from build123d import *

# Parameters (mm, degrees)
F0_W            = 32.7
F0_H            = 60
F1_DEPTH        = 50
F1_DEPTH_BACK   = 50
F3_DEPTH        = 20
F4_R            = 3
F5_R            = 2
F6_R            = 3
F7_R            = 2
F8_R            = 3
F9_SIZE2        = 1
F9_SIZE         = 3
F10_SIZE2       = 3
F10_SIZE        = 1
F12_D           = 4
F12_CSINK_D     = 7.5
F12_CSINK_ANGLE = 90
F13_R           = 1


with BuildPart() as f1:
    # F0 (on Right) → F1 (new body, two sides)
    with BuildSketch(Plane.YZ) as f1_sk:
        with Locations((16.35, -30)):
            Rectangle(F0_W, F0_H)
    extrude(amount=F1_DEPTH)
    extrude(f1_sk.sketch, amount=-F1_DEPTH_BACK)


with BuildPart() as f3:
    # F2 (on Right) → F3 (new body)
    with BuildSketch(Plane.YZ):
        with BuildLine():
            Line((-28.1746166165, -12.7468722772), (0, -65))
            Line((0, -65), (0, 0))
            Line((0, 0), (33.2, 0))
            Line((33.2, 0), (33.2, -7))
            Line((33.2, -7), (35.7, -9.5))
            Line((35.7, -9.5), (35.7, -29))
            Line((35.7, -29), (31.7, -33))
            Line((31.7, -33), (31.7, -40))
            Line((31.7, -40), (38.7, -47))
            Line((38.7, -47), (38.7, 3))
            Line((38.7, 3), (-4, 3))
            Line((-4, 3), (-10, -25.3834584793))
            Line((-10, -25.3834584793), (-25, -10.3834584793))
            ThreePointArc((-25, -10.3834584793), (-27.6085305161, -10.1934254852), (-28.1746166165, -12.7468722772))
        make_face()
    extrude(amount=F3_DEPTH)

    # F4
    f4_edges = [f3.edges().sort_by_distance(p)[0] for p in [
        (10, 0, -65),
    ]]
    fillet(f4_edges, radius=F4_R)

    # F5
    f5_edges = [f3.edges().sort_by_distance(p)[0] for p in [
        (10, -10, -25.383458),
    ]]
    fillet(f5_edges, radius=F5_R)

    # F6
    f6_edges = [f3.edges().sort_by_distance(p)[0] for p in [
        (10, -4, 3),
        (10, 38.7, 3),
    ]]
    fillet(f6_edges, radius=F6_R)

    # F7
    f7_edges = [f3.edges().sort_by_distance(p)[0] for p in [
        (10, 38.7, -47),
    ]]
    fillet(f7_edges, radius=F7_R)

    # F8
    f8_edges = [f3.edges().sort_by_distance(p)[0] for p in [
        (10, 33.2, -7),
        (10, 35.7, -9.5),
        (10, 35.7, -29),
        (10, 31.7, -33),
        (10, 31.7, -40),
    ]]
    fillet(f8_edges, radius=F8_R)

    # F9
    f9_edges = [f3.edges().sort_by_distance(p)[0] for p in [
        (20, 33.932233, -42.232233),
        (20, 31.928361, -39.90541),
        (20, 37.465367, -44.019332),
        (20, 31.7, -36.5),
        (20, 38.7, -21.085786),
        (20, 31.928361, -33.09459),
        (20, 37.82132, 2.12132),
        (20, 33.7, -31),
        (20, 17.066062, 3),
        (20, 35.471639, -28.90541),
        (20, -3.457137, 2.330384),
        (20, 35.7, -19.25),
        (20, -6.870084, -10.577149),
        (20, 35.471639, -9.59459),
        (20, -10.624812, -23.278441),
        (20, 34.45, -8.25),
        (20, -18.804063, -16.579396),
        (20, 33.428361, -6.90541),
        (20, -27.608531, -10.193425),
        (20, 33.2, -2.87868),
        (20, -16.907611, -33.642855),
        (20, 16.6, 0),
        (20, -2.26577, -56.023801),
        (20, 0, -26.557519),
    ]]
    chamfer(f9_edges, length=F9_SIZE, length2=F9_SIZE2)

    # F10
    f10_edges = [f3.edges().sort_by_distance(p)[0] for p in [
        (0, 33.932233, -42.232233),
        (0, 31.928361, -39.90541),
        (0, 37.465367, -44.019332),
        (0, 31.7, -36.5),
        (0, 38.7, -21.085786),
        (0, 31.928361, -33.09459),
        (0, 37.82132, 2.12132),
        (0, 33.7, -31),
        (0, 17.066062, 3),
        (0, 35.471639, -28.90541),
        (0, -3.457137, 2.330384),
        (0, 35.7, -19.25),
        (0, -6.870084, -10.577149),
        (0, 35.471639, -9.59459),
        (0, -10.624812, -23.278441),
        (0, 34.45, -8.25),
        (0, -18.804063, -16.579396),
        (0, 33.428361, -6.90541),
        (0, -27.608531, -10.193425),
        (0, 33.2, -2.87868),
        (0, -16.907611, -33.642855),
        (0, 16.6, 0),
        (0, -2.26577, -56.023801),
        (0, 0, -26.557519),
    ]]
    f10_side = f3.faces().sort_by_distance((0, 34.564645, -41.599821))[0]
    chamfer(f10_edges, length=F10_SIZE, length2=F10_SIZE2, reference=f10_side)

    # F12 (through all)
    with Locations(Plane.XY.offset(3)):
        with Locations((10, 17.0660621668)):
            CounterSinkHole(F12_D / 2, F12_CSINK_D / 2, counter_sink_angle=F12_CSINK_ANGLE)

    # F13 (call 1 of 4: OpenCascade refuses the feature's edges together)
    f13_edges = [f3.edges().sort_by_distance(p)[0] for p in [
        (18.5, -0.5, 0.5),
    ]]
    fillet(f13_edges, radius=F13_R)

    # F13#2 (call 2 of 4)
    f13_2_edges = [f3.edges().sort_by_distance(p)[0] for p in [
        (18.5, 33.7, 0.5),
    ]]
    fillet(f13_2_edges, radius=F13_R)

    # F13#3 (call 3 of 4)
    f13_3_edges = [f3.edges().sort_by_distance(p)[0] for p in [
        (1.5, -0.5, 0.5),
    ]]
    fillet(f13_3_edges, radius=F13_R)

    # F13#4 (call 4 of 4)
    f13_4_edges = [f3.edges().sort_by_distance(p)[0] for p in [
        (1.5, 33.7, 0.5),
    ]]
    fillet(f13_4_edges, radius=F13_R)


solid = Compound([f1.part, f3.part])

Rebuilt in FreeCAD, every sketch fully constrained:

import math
import FreeCAD as App
import Part
import Sketcher
Q = App.Units.Quantity


def edges_at(feature, points):
    """Names of the edges that pass closest to the given points."""
    edges = feature.Shape.Edges
    near = lambda p: min(range(len(edges)), key=lambda i: edges[i].distToShape(Part.Vertex(*p))[0])
    return sorted({f"Edge{near(p) + 1}" for p in points})


def add_polygon(sketch, points):
    """Adds a closed chain of lines whose ends are joined by coincident constraints."""
    first, n = sketch.GeometryCount, len(points)
    for a, b in zip(points, points[1:] + points[:1]):
        sketch.addGeometry(Part.LineSegment(App.Vector(*a, 0), App.Vector(*b, 0)), False)
    for i in range(n):
        sketch.addConstraint(Sketcher.Constraint("Coincident", first + i, 2, first + (i + 1) % n, 1))

doc = App.newDocument("Part")
body = doc.addObject("PartDesign::Body", "Body")

# Sketch on YZ plane
sketch1 = doc.addObject("Sketcher::SketchObject", "Sketch")
body.addObject(sketch1)
sketch1.AttachmentSupport = (doc.YZ_Plane, [""])
sketch1.MapMode = "FlatFace"
add_polygon(sketch1, [(0, 0), (0, -60), (33, -60), (33, 0)])  # lines 0-3
sketch1.addConstraint([
    Sketcher.Constraint("Vertical", 0),
    Sketcher.Constraint("Horizontal", 1),
    Sketcher.Constraint("Vertical", 2),
    Sketcher.Constraint("Horizontal", 3),
    Sketcher.Constraint("Coincident", 3, 2, -1, 1),
    Sketcher.Constraint("DistanceY", 0, 2, 0, 1, Q("60 mm")),
    Sketcher.Constraint("DistanceX", 1, 1, 1, 2, Q("32.7 mm")),
])
pad1 = doc.addObject("PartDesign::Pad", "Pad")
body.addObject(pad1)
pad1.Profile = sketch1
pad1.Type = "TwoLengths"
pad1.Length = 50
pad1.Length2 = 50
body2 = doc.addObject("PartDesign::Body", "Body001")

# Sketch on YZ plane
sketch2 = doc.addObject("Sketcher::SketchObject", "Sketch001")
body2.addObject(sketch2)
sketch2.AttachmentSupport = (doc.getObject("YZ_Plane001"), [""])
sketch2.MapMode = "FlatFace"
sketch2.addGeometry([
    Part.LineSegment(App.Vector(-28.2, -12.7, 0), App.Vector(0, -65, 0)),  # 0
    Part.LineSegment(App.Vector(0, -65, 0), App.Vector(0, 0, 0)),  # 1
    Part.LineSegment(App.Vector(0, 0, 0), App.Vector(33.2, 0, 0)),  # 2
    Part.LineSegment(App.Vector(33.2, 0, 0), App.Vector(33.2, -7, 0)),  # 3
    Part.LineSegment(App.Vector(33.2, -7, 0), App.Vector(35.7, -9.5, 0)),  # 4
    Part.LineSegment(App.Vector(35.7, -9.5, 0), App.Vector(35.7, -29, 0)),  # 5
    Part.LineSegment(App.Vector(35.7, -29, 0), App.Vector(31.7, -33, 0)),  # 6
    Part.LineSegment(App.Vector(31.7, -33, 0), App.Vector(31.7, -40, 0)),  # 7
    Part.LineSegment(App.Vector(31.7, -40, 0), App.Vector(38.7, -47, 0)),  # 8
    Part.LineSegment(App.Vector(38.7, -47, 0), App.Vector(38.7, 3, 0)),  # 9
    Part.LineSegment(App.Vector(38.7, 3, 0), App.Vector(-4, 3, 0)),  # 10
    Part.LineSegment(App.Vector(-4, 3, 0), App.Vector(-10, -25.4, 0)),  # 11
    Part.LineSegment(App.Vector(-10, -25.4, 0), App.Vector(-25, -10.4, 0)),  # 12
    Part.ArcOfCircle(Part.Circle(App.Vector(-26.4, -11.8, 0), App.Vector(0, 0, 1), 2), math.radians(45), math.radians(208)),  # 13
], False)
sketch2.addConstraint([
    Sketcher.Constraint("Coincident", 0, 2, 1, 1),
    Sketcher.Constraint("Coincident", 1, 2, 2, 1),
    Sketcher.Constraint("Coincident", 2, 2, 3, 1),
    Sketcher.Constraint("Coincident", 3, 2, 4, 1),
    Sketcher.Constraint("Coincident", 4, 2, 5, 1),
    Sketcher.Constraint("Coincident", 5, 2, 6, 1),
    Sketcher.Constraint("Coincident", 6, 2, 7, 1),
    Sketcher.Constraint("Coincident", 7, 2, 8, 1),
    Sketcher.Constraint("Coincident", 8, 2, 9, 1),
    Sketcher.Constraint("Coincident", 9, 2, 10, 1),
    Sketcher.Constraint("Coincident", 10, 2, 11, 1),
    Sketcher.Constraint("Coincident", 11, 2, 12, 1),
    Sketcher.Constraint("Tangent", 12, 2, 13, 1),
    Sketcher.Constraint("Tangent", 13, 2, 0, 1),
    Sketcher.Constraint("Vertical", 1),
    Sketcher.Constraint("Horizontal", 2),
    Sketcher.Constraint("Vertical", 3),
    Sketcher.Constraint("Vertical", 5),
    Sketcher.Constraint("Vertical", 7),
    Sketcher.Constraint("Vertical", 9),
    Sketcher.Constraint("Horizontal", 10),
    Sketcher.Constraint("Coincident", 1, 2, -1, 1),
    Sketcher.Constraint("Perpendicular", 4, 6),
    Sketcher.Constraint("Perpendicular", 6, 8),
    Sketcher.Constraint("Parallel", 8, 12),
    Sketcher.Constraint("Equal", 3, 7),
    Sketcher.Constraint("Radius", 13, Q("2 mm")),
    Sketcher.Constraint("DistanceY", 1, 1, 1, 2, Q("65 mm")),
    Sketcher.Constraint("DistanceY", 3, 2, 3, 1, Q("7 mm")),
    Sketcher.Constraint("DistanceY", 9, 1, 9, 2, Q("50 mm")),
    Sketcher.Constraint("Angle", 4, Q("-45 deg")),
    Sketcher.Constraint("DistanceX", 2, 1, 2, 2, Q("33.2 mm")),
    Sketcher.Constraint("DistanceX", 10, 2, 10, 1, Q("42.7 mm")),
    Sketcher.Constraint("DistanceY", 5, 2, 5, 1, Q("19.5 mm")),
    Sketcher.Constraint("DistanceY", 5, 2, -1, 1, Q("29 mm")),
    Sketcher.Constraint("DistanceY", 6, 2, -1, 1, Q("33 mm")),
    Sketcher.Constraint("DistanceY", 8, 2, -1, 1, Q("47 mm")),
    Sketcher.Constraint("DistanceX", 11, 2, -1, 1, Q("10 mm")),
    Sketcher.Constraint("DistanceX", 12, 2, -1, 1, Q("25 mm")),
    Sketcher.Constraint("Distance", 11, Q("29.0107 mm")),
])
pad2 = doc.addObject("PartDesign::Pad", "Pad001")
body2.addObject(pad2)
pad2.Profile = sketch2
pad2.Length = 20
doc.recompute()

fillet = doc.addObject("PartDesign::Fillet", "Fillet")
body2.addObject(fillet)
fillet.Base = (pad2, edges_at(pad2, [(10, 0, -65)]))
fillet.Radius = 3
doc.recompute()

fillet2 = doc.addObject("PartDesign::Fillet", "Fillet001")
body2.addObject(fillet2)
fillet2.Base = (fillet, edges_at(fillet, [(10, -10, -25.383)]))
fillet2.Radius = 2
doc.recompute()

fillet3 = doc.addObject("PartDesign::Fillet", "Fillet002")
body2.addObject(fillet3)
fillet3.Base = (fillet2, edges_at(fillet2, [(10, -4, 3), (10, 38.7, 3)]))
fillet3.Radius = 3
doc.recompute()

fillet4 = doc.addObject("PartDesign::Fillet", "Fillet003")
body2.addObject(fillet4)
fillet4.Base = (fillet3, edges_at(fillet3, [(10, 38.7, -47)]))
fillet4.Radius = 2
doc.recompute()

fillet5 = doc.addObject("PartDesign::Fillet", "Fillet004")
body2.addObject(fillet5)
fillet5.Base = (fillet4, edges_at(fillet4, [
    (10, 33.2, -7),
    (10, 35.7, -9.5),
    (10, 35.7, -29),
    (10, 31.7, -33),
    (10, 31.7, -40),
]))
fillet5.Radius = 3
doc.recompute()

chamfer = doc.addObject("PartDesign::Chamfer", "Chamfer")
body2.addObject(chamfer)
chamfer.Base = (fillet5, edges_at(fillet5, [
    (20, 33.932, -42.232),
    (20, 31.928, -39.905),
    (20, 37.465, -44.019),
    (20, 31.7, -36.5),
    (20, 38.7, -21.086),
    (20, 31.928, -33.095),
    (20, 37.821, 2.121),
    (20, 33.7, -31),
    (20, 17.066, 3),
    (20, 35.472, -28.905),
    (20, -3.457, 2.33),
    (20, 35.7, -19.25),
    (20, -6.87, -10.577),
    (20, 35.472, -9.595),
    (20, -10.625, -23.278),
    (20, 34.45, -8.25),
    (20, -18.804, -16.579),
    (20, 33.428, -6.905),
    (20, -27.609, -10.193),
    (20, 33.2, -2.879),
    (20, -16.908, -33.643),
    (20, 16.6, 0),
    (20, -2.266, -56.024),
    (20, 0, -26.558),
]))
chamfer.ChamferType = "Two distances"
chamfer.Size = 3
chamfer.Size2 = 1
doc.recompute()

chamfer2 = doc.addObject("PartDesign::Chamfer", "Chamfer001")
body2.addObject(chamfer2)
chamfer2.Base = (chamfer, edges_at(chamfer, [
    (0, 33.932, -42.232),
    (0, 31.928, -39.905),
    (0, 37.465, -44.019),
    (0, 31.7, -36.5),
    (0, 38.7, -21.086),
    (0, 31.928, -33.095),
    (0, 37.821, 2.121),
    (0, 33.7, -31),
    (0, 17.066, 3),
    (0, 35.472, -28.905),
    (0, -3.457, 2.33),
    (0, 35.7, -19.25),
    (0, -6.87, -10.577),
    (0, 35.472, -9.595),
    (0, -10.625, -23.278),
    (0, 34.45, -8.25),
    (0, -18.804, -16.579),
    (0, 33.428, -6.905),
    (0, -27.609, -10.193),
    (0, 33.2, -2.879),
    (0, -16.908, -33.643),
    (0, 16.6, 0),
    (0, -2.266, -56.024),
    (0, 0, -26.558),
]))
chamfer2.ChamferType = "Two distances"
chamfer2.Size = 1
chamfer2.Size2 = 3

# Sketch on XY plane
sketch3 = doc.addObject("Sketcher::SketchObject", "Sketch002")
body2.addObject(sketch3)
sketch3.AttachmentSupport = (doc.getObject("XY_Plane001"), [""])
sketch3.MapMode = "FlatFace"
sketch3.AttachmentOffset = App.Placement(App.Vector(0, 0, 3), App.Rotation())
sketch3.addGeometry(Part.Circle(App.Vector(10, 17.1, 0), App.Vector(0, 0, 1), 2), False)
sketch3.addConstraint([
    Sketcher.Constraint("Diameter", 0, Q("4 mm")),
    Sketcher.Constraint("DistanceX", -1, 1, 0, 3, Q("10 mm")),
    Sketcher.Constraint("DistanceY", -1, 1, 0, 3, Q("17.066062 mm")),
])
doc.recompute()
hole = doc.addObject("PartDesign::Hole", "Hole")
body2.addObject(hole)
hole.Profile = sketch3
hole.ThreadType = "None"
hole.Diameter = 4
hole.DepthType = "ThroughAll"
hole.HoleCutType = "Countersink"
hole.HoleCutDiameter = 7.5
hole.HoleCutCountersinkAngle = 90
doc.recompute()

fillet6 = doc.addObject("PartDesign::Fillet", "Fillet005")
body2.addObject(fillet6)
fillet6.Base = (hole, edges_at(hole, [(18.5, -0.5, 0.5)]))
fillet6.Radius = 1
doc.recompute()

fillet7 = doc.addObject("PartDesign::Fillet", "Fillet006")
body2.addObject(fillet7)
fillet7.Base = (fillet6, edges_at(fillet6, [(18.5, 33.7, 0.5)]))
fillet7.Radius = 1
doc.recompute()

fillet8 = doc.addObject("PartDesign::Fillet", "Fillet007")
body2.addObject(fillet8)
fillet8.Base = (fillet7, edges_at(fillet7, [(1.5, -0.5, 0.5)]))
fillet8.Radius = 1
doc.recompute()

fillet9 = doc.addObject("PartDesign::Fillet", "Fillet008")
body2.addObject(fillet9)
fillet9.Base = (fillet8, edges_at(fillet8, [(1.5, 33.7, 0.5)]))
fillet9.Radius = 1

doc.recompute()
